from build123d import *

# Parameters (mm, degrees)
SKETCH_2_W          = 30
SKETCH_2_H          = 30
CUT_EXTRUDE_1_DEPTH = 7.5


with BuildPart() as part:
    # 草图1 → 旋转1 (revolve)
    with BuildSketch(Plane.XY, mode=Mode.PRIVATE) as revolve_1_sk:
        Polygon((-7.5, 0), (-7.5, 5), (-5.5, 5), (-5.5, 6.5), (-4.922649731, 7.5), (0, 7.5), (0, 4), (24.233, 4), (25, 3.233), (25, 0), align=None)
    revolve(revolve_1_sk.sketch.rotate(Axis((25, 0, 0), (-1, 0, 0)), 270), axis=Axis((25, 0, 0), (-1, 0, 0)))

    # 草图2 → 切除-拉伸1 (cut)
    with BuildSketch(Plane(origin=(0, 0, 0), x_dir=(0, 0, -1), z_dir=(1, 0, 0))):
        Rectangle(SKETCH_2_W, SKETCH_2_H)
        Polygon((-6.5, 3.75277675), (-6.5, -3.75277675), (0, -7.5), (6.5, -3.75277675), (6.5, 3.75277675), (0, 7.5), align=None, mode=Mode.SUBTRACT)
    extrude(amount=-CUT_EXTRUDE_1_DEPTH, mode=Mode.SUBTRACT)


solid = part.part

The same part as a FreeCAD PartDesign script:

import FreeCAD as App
import Part
import Sketcher
Q = App.Units.Quantity


def add_polygon(sketch, points):
    """Adds a closed chain of lines whose ends are joined by coincident constraints."""
    first, n = sketch.GeometryCount, len(points)
    for a, b in zip(points, points[1:] + points[:1]):
        sketch.addGeometry(Part.LineSegment(App.Vector(*a, 0), App.Vector(*b, 0)), False)
    for i in range(n):
        sketch.addConstraint(Sketcher.Constraint("Coincident", first + i, 2, first + (i + 1) % n, 1))

doc = App.newDocument("Part")
params = doc.addObject("Spreadsheet::Sheet", "Params")
for row, (alias, value) in enumerate([
    ("sketch1_width", "2 mm"),
    ("sketch1_height", "5 mm"),
    ("sketch1_width2", "32.5 mm"),
    ("sketch1_height2", "3.5 mm"),
    ("sketch1_height3", "1.5 mm"),
    ("revolution_angle", "360 deg"),
    ("sketch2_width", "30 mm"),
    ("pocket1_length", "7.5 mm"),
], start=1):
    params.set(f"A{row}", alias)
    params.set(f"B{row}", "=" + value)
    params.setAlias(f"B{row}", alias)

body = doc.addObject("PartDesign::Body", "Body")

sketch1 = body.newObject("Sketcher::SketchObject", "Sketch")
sketch1.AttachmentSupport = (doc.getObject("XY_Plane"), [""])
sketch1.MapMode = "FlatFace"
add_polygon(sketch1, [(-7.5, 5), (-7.5, 0), (25, 0), (25, 3.2), (24.2, 4), (0, 4), (0, 7.5), (-4.9, 7.5), (-5.5, 6.5), (-5.5, 5)])
sketch1.addConstraint([
    Sketcher.Constraint("Vertical", 0),
    Sketcher.Constraint("Horizontal", 1),
    Sketcher.Constraint("Vertical", 2),
    Sketcher.Constraint("Horizontal", 4),
    Sketcher.Constraint("Vertical", 5),
    Sketcher.Constraint("Horizontal", 6),
    Sketcher.Constraint("Vertical", 8),
    Sketcher.Constraint("Horizontal", 9),
    Sketcher.Constraint("PointOnObject", 0, 2, -1),
    Sketcher.Constraint("PointOnObject", 4, 2, -2),
    Sketcher.Constraint("DistanceX", 9, 2, 9, 1, Q("2 mm")),
    Sketcher.Constraint("DistanceY", 0, 2, 0, 1, Q("5 mm")),
    Sketcher.Constraint("Angle", 3, Q("135 deg")),
    Sketcher.Constraint("Angle", 7, Q("-120 deg")),
    Sketcher.Constraint("DistanceX", 1, 1, 1, 2, Q("32.5 mm")),
    Sketcher.Constraint("DistanceY", 5, 1, 5, 2, Q("3.5 mm")),
    Sketcher.Constraint("DistanceY", 8, 2, 8, 1, Q("1.5 mm")),
    Sketcher.Constraint("DistanceX", -1, 1, 1, 2, Q("25 mm")),
    Sketcher.Constraint("DistanceY", -1, 1, 3, 2, Q("4 mm")),
    Sketcher.Constraint("DistanceX", 4, 2, 4, 1, Q("24.233 mm")),
])
sketch1.setExpression("Constraints[20]", "Params.sketch1_width")
sketch1.setExpression("Constraints[21]", "Params.sketch1_height")
sketch1.setExpression("Constraints[24]", "Params.sketch1_width2")
sketch1.setExpression("Constraints[25]", "Params.sketch1_height2")
sketch1.setExpression("Constraints[26]", "Params.sketch1_height3")
revolution = body.newObject("PartDesign::Revolution", "Revolution")
revolution.Profile = sketch1
revolution.ReferenceAxis = (sketch1, ["H_Axis"])
revolution.setExpression("Angle", "Params.revolution_angle")

sketch2 = body.newObject("Sketcher::SketchObject", "Sketch001")
sketch2.AttachmentSupport = (doc.getObject("YZ_Plane"), [""])
sketch2.MapMode = "FlatFace"
add_polygon(sketch2, [(15, 15), (-15, 15), (-15, -15), (15, -15)])
add_polygon(sketch2, [(-4, 6), (4, 6), (8, 0), (4, -6), (-4, -6), (-8, 0)])
sketch2.addConstraint([
    Sketcher.Constraint("Horizontal", 0),
    Sketcher.Constraint("Vertical", 1),
    Sketcher.Constraint("Horizontal", 2),
    Sketcher.Constraint("Vertical", 3),
    Sketcher.Constraint("Horizontal", 4),
    Sketcher.Constraint("Horizontal", 7),
    Sketcher.Constraint("Symmetric", 0, 2, 2, 2, -1, 1),
    Sketcher.Constraint("Symmetric", 4, 2, 7, 2, -1, 1),
    Sketcher.Constraint("Symmetric", 5, 2, 8, 2, -1, 1),
    Sketcher.Constraint("PointOnObject", 5, 2, -1),
    Sketcher.Constraint("Parallel", 6, 9),
    Sketcher.Constraint("Vertical", 4, 2, 6, 2),
    Sketcher.Constraint("Equal", 2, 1),
    Sketcher.Constraint("DistanceX", 0, 2, 0, 1, Q("30 mm")),
    Sketcher.Constraint("DistanceY", 6, 2, 4, 2, Q("13 mm")),
    Sketcher.Constraint("DistanceX", 8, 2, 5, 2, Q("15 mm")),
    Sketcher.Constraint("Distance", 5, Q("7.502778 mm")),
])
sketch2.setExpression("Constraints[23]", "Params.sketch2_width")
pocket1 = body.newObject("PartDesign::Pocket", "Pocket")
pocket1.Profile = sketch2
pocket1.setExpression("Length", "Params.pocket1_length")

doc.recompute()
